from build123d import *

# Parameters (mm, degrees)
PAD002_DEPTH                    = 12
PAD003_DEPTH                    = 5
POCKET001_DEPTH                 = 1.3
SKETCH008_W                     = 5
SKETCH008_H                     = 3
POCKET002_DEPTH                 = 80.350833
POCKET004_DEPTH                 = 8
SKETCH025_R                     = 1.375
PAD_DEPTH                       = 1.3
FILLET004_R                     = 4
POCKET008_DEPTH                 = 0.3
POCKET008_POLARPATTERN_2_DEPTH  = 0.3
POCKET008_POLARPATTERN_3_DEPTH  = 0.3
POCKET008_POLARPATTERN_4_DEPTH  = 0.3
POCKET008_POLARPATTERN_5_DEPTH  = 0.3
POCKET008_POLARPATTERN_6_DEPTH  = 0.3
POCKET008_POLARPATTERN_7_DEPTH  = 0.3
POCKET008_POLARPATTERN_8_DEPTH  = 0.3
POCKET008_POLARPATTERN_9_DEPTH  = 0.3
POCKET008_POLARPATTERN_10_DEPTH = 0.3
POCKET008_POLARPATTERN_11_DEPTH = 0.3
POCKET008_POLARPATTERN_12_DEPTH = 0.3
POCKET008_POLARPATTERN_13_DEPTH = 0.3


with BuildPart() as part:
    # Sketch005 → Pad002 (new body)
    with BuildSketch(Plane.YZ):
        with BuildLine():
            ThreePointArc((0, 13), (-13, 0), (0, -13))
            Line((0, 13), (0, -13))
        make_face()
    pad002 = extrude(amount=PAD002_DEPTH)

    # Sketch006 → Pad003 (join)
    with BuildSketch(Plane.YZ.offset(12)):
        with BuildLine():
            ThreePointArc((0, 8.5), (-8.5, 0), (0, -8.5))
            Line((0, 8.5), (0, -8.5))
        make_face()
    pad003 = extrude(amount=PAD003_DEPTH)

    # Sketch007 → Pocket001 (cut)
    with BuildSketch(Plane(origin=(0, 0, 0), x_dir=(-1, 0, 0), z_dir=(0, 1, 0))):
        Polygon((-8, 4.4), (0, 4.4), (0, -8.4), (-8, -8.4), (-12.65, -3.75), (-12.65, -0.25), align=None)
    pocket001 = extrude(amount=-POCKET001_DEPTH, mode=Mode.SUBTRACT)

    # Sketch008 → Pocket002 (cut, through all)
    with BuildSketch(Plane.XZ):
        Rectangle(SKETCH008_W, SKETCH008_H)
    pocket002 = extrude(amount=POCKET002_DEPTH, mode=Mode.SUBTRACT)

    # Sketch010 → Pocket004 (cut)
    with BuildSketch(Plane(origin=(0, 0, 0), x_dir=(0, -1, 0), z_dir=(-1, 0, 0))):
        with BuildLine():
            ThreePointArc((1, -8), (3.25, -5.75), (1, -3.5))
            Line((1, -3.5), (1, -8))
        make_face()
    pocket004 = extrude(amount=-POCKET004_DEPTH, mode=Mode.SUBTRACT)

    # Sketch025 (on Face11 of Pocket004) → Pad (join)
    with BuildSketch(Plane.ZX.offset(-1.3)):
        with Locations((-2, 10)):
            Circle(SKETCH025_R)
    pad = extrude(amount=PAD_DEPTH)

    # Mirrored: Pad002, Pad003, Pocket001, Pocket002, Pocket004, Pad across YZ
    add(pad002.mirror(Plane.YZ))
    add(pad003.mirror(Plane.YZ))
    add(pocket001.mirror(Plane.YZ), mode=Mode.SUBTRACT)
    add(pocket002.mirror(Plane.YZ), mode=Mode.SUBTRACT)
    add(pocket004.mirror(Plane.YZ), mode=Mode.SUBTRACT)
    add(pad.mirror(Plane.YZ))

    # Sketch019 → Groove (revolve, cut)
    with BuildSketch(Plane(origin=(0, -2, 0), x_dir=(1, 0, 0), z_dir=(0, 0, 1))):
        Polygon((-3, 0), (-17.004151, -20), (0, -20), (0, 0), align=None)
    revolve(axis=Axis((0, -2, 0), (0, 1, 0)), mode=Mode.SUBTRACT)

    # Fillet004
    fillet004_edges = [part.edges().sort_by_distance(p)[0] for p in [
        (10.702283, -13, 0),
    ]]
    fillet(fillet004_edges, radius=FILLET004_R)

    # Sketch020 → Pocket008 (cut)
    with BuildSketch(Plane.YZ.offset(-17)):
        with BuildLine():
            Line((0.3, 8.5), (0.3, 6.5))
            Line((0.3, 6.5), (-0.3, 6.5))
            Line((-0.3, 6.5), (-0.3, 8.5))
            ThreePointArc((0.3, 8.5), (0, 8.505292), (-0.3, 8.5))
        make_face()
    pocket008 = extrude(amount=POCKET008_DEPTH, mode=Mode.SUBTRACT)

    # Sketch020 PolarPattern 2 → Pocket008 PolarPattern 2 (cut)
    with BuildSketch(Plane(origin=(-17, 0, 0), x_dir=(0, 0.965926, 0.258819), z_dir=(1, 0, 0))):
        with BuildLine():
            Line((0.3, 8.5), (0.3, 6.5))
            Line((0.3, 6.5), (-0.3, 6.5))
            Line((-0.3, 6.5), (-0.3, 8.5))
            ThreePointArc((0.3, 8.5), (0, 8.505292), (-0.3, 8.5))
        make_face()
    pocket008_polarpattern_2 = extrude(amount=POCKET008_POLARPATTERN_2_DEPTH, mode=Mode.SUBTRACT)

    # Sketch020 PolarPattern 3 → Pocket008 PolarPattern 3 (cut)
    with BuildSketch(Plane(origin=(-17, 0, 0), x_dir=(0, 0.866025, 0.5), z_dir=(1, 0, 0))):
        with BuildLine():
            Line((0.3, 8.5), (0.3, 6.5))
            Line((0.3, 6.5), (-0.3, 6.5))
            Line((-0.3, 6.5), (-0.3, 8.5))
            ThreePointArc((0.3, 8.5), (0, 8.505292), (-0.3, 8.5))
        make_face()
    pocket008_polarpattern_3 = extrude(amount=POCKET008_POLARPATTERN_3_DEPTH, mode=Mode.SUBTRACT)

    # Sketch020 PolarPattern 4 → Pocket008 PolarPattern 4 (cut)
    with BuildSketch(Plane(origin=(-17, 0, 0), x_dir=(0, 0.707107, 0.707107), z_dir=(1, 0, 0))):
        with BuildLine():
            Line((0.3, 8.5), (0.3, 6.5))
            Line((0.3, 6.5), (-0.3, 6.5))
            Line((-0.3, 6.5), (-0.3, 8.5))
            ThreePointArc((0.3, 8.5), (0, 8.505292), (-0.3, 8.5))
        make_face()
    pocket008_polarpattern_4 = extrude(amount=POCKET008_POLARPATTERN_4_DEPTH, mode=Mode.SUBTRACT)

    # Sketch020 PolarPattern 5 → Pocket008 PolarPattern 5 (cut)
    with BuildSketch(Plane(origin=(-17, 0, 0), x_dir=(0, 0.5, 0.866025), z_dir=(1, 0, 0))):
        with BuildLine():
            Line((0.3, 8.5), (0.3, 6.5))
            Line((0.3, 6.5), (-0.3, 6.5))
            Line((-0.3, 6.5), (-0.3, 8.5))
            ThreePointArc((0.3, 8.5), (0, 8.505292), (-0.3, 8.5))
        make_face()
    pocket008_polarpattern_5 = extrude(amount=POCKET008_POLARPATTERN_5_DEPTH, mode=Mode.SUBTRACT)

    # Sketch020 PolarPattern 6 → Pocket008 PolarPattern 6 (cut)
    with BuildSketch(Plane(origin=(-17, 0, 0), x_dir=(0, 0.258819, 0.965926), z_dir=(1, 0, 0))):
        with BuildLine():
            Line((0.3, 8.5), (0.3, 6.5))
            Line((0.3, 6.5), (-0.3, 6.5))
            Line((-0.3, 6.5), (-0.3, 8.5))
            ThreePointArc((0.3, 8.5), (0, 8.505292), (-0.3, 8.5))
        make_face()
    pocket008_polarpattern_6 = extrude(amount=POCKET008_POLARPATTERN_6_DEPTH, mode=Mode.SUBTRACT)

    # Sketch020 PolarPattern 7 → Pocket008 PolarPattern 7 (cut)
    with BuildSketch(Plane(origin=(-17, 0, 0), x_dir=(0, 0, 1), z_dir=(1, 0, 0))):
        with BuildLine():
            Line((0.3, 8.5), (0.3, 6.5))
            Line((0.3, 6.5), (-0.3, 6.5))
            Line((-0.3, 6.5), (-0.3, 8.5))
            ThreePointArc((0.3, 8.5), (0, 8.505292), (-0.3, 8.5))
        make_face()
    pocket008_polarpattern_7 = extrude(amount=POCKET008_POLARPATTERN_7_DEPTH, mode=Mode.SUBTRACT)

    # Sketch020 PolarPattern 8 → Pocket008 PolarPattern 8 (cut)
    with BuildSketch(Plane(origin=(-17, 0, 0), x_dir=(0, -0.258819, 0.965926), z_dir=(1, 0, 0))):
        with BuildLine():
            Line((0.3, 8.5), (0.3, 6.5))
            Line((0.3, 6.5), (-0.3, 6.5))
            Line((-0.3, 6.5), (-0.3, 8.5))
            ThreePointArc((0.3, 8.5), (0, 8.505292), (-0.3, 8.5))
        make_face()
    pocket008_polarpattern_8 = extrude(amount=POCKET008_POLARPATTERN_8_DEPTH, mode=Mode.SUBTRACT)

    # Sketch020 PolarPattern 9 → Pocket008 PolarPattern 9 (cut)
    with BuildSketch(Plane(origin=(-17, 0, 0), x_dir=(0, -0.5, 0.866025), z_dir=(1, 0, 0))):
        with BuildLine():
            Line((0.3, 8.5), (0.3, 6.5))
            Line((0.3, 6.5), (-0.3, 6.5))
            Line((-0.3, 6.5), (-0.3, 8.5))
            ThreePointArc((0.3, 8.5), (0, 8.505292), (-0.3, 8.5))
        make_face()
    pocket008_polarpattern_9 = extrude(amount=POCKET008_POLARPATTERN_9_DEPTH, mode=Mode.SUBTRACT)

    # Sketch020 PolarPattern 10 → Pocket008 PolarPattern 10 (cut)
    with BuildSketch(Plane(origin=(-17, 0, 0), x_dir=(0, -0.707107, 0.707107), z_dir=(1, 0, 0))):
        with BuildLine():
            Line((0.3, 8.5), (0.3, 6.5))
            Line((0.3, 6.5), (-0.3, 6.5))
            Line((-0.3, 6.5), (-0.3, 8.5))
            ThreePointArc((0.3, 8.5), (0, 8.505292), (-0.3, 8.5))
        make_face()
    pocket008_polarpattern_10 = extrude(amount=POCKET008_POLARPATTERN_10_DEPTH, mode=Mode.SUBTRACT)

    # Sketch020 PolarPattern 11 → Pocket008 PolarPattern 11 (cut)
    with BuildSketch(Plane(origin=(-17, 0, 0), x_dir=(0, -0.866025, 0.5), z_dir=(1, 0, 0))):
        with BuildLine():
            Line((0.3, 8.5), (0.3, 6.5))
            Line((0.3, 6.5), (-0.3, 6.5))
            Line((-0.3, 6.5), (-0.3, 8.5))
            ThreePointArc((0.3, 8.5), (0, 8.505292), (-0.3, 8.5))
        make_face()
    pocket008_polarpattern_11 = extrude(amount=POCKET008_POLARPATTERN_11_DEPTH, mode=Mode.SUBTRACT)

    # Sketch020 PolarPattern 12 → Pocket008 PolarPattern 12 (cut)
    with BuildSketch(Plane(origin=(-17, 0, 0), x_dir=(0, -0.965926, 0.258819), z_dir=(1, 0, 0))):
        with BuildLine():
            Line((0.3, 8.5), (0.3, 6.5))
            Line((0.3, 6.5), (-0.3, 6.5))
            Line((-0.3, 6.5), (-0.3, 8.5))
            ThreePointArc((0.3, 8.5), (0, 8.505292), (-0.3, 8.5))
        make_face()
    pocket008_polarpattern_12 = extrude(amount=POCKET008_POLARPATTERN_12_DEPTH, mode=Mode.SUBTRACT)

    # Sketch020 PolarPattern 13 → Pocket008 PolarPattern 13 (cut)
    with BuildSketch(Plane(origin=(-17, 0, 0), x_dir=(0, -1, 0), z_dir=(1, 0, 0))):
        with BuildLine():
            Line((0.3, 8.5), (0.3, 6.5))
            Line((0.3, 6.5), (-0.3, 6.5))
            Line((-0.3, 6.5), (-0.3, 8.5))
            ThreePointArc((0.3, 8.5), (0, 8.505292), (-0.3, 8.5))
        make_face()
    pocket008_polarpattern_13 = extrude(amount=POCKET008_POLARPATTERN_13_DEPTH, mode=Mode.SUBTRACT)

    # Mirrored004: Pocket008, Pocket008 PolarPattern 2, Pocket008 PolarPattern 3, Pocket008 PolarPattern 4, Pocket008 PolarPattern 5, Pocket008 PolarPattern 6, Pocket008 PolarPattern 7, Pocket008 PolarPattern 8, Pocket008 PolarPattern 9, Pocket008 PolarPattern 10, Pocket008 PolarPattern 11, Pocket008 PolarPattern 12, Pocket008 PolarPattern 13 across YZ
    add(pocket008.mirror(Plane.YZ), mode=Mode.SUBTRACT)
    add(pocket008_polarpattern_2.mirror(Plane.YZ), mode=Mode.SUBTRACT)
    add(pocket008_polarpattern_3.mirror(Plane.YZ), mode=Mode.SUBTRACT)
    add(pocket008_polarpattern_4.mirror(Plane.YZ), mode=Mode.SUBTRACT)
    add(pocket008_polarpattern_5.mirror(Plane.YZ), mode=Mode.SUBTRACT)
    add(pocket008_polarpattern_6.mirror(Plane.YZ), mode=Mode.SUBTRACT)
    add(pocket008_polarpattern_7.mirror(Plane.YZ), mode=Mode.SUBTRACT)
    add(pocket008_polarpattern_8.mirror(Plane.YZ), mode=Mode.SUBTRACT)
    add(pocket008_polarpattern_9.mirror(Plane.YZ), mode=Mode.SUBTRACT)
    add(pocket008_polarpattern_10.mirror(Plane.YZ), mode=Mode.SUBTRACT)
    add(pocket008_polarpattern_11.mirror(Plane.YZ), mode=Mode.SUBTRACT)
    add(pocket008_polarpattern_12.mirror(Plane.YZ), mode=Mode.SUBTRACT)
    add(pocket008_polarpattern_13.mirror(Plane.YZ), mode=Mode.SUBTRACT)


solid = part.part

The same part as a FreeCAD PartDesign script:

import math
import FreeCAD as App
import Part
import Sketcher
Q = App.Units.Quantity


def edges_at(feature, points):
    """Names of the edges that pass closest to the given points."""
    edges = feature.Shape.Edges
    near = lambda p: min(range(len(edges)), key=lambda i: edges[i].distToShape(Part.Vertex(*p))[0])
    return sorted({f"Edge{near(p) + 1}" for p in points})


def add_polygon(sketch, points):
    """Adds a closed chain of lines whose ends are joined by coincident constraints."""
    first, n = sketch.GeometryCount, len(points)
    for a, b in zip(points, points[1:] + points[:1]):
        sketch.addGeometry(Part.LineSegment(App.Vector(*a, 0), App.Vector(*b, 0)), False)
    for i in range(n):
        sketch.addConstraint(Sketcher.Constraint("Coincident", first + i, 2, first + (i + 1) % n, 1))

doc = App.newDocument("Part")
body = doc.addObject("PartDesign::Body", "Body")

# Sketch on YZ plane
sketch1 = body.newObject("Sketcher::SketchObject", "Sketch")
sketch1.AttachmentSupport = (doc.getObject("YZ_Plane"), [""])
sketch1.MapMode = "FlatFace"
sketch1.addGeometry([
    Part.ArcOfCircle(Part.Circle(App.Vector(0, 0, 0), App.Vector(0, 0, 1), 13), math.radians(90), math.radians(270)),
    Part.LineSegment(App.Vector(0, -13, 0), App.Vector(0, 13, 0)),
], False)
sketch1.addConstraint([
    Sketcher.Constraint("Coincident", 0, 1, 1, 2),
    Sketcher.Constraint("Coincident", 1, 1, 0, 2),
    Sketcher.Constraint("Vertical", 1),
    Sketcher.Constraint("Coincident", 0, 3, -1, 1),
    Sketcher.Constraint("PointOnObject", 0, 1, -2),
    Sketcher.Constraint("Radius", 0, 13.0),
])
pad1 = body.newObject("PartDesign::Pad", "Pad")
pad1.Profile = sketch1
pad1.Length = 12

# Sketch on YZ plane
sketch2 = body.newObject("Sketcher::SketchObject", "Sketch001")
sketch2.AttachmentSupport = (doc.getObject("YZ_Plane"), [""])
sketch2.MapMode = "FlatFace"
sketch2.AttachmentOffset = App.Placement(App.Vector(0, 0, 12), App.Rotation())
sketch2.addGeometry([
    Part.ArcOfCircle(Part.Circle(App.Vector(0, 0, 0), App.Vector(0, 0, 1), 8), math.radians(90), math.radians(270)),
    Part.LineSegment(App.Vector(0, -8, 0), App.Vector(0, 8, 0)),
], False)
sketch2.addConstraint([
    Sketcher.Constraint("Coincident", 0, 1, 1, 2),
    Sketcher.Constraint("Coincident", 1, 1, 0, 2),
    Sketcher.Constraint("Vertical", 1),
    Sketcher.Constraint("Coincident", 0, 3, -1, 1),
    Sketcher.Constraint("PointOnObject", 0, 1, -2),
    Sketcher.Constraint("Radius", 0, 8.5),
])
pad2 = body.newObject("PartDesign::Pad", "Pad001")
pad2.Profile = sketch2
pad2.Length = 5

# Sketch on XZ plane
sketch3 = body.newObject("Sketcher::SketchObject", "Sketch002")
sketch3.AttachmentSupport = (doc.getObject("XZ_Plane"), [""])
sketch3.MapMode = "FlatFace"
add_polygon(sketch3, [(0, 4.4), (8, 4.4), (12.7, -0.2), (12.7, -3.8), (8, -8.4), (0, -8.4)])  # lines 0-5
sketch3.addConstraint([
    Sketcher.Constraint("Horizontal", 0),
    Sketcher.Constraint("Vertical", 2),
    Sketcher.Constraint("Horizontal", 4),
    Sketcher.Constraint("Vertical", 5),
    Sketcher.Constraint("PointOnObject", 4, 2, -2),
    Sketcher.Constraint("Perpendicular", 1, 3),
    Sketcher.Constraint("Vertical", 0, 2, 3, 2),
    Sketcher.Constraint("Equal", 1, 3),
    Sketcher.Constraint("DistanceX", 0, 1, 0, 2, 8.0),
    Sketcher.Constraint("DistanceY", 2, 2, 2, 1, 3.5),
    Sketcher.Constraint("DistanceY", 5, 1, 5, 2, 12.8),
    Sketcher.Constraint("DistanceY", -1, 1, 0, 2, 4.4),
])
pocket1 = body.newObject("PartDesign::Pocket", "Pocket")
pocket1.Profile = sketch3
pocket1.Length = 1.3
pocket1.Reversed = True

# Sketch on XZ plane
sketch4 = body.newObject("Sketcher::SketchObject", "Sketch003")
sketch4.AttachmentSupport = (doc.getObject("XZ_Plane"), [""])
sketch4.MapMode = "FlatFace"
add_polygon(sketch4, [(-2.5, 1.5), (-2.5, -1.5), (2.5, -1.5), (2.5, 1.5)])  # lines 0-3
sketch4.addConstraint([
    Sketcher.Constraint("Vertical", 0),
    Sketcher.Constraint("Horizontal", 1),
    Sketcher.Constraint("Vertical", 2),
    Sketcher.Constraint("Horizontal", 3),
    Sketcher.Constraint("Symmetric", 0, 2, 2, 2, -1, 1),
    Sketcher.Constraint("DistanceX", 1, 1, 1, 2, 5.0),
    Sketcher.Constraint("DistanceY", 0, 2, 0, 1, 3.0),
])
pocket2 = body.newObject("PartDesign::Pocket", "Pocket001")
pocket2.Profile = sketch4
pocket2.Type = "ThroughAll"
pocket2.Reversed = True

# Sketch on YZ plane
sketch5 = body.newObject("Sketcher::SketchObject", "Sketch004")
sketch5.AttachmentSupport = (doc.getObject("YZ_Plane"), [""])
sketch5.MapMode = "FlatFace"
sketch5.addGeometry([
    Part.ArcOfCircle(Part.Circle(App.Vector(-1, -5.8, 0), App.Vector(0, 0, 1), 2.2), math.radians(90), math.radians(270)),
    Part.LineSegment(App.Vector(-1, -3.5, 0), App.Vector(-1, -8, 0)),
], False)
sketch5.addConstraint([
    Sketcher.Constraint("Coincident", 0, 1, 1, 1),
    Sketcher.Constraint("Coincident", 1, 2, 0, 2),
    Sketcher.Constraint("Vertical", 1),
    Sketcher.Constraint("Radius", 0, 2.25),
    Sketcher.Constraint("DistanceX", 0, 3, -1, 1, 1.0),
    Sketcher.Constraint("DistanceX", 0, 1, -1, 1, 1.0),
    Sketcher.Constraint("DistanceY", 1, 2, -1, 1, 8.0),
])
pocket3 = body.newObject("PartDesign::Pocket", "Pocket002")
pocket3.Profile = sketch5
pocket3.Length = 8
pocket3.Reversed = True

# Sketch on XZ plane
sketch6 = body.newObject("Sketcher::SketchObject", "Sketch005")
sketch6.AttachmentSupport = (doc.getObject("XZ_Plane"), [""])
sketch6.MapMode = "FlatFace"
sketch6.AttachmentOffset = App.Placement(App.Vector(0, 0, 1.3), App.Rotation())
sketch6.addGeometry(Part.Circle(App.Vector(10, -2, 0), App.Vector(0, 0, 1), 1.4), False)
sketch6.addConstraint([
    Sketcher.Constraint("Diameter", 0, 2.75),
    Sketcher.Constraint("DistanceX", -1, 1, 0, 3, 10.0),
    Sketcher.Constraint("DistanceY", 0, 3, -1, 1, 2.0),
])
pad3 = body.newObject("PartDesign::Pad", "Pad002")
pad3.Profile = sketch6
pad3.Length = 1.3
pad3.Reversed = True
doc.recompute()

mirrored = body.newObject("PartDesign::Mirrored", "Mirrored")
mirrored.Originals = [pad1, pad2, pocket1, pocket2, pocket3, pad3]
mirrored.MirrorPlane = (doc.getObject("YZ_Plane"), [""])
body.Tip = mirrored

# Sketch on XY plane
sketch7 = body.newObject("Sketcher::SketchObject", "Sketch006")
sketch7.AttachmentSupport = (doc.getObject("XY_Plane"), [""])
sketch7.MapMode = "FlatFace"
add_polygon(sketch7, [(-3, -2), (-17, -22), (0, -22), (0, -2)])  # lines 0-3
sketch7.addConstraint([
    Sketcher.Constraint("Horizontal", 1),
    Sketcher.Constraint("Vertical", 2),
    Sketcher.Constraint("Horizontal", 3),
    Sketcher.Constraint("PointOnObject", 1, 2, -2),
    Sketcher.Constraint("DistanceX", 3, 2, 3, 1, 3.0),
    Sketcher.Constraint("DistanceY", 2, 1, 2, 2, 20.0),
    Sketcher.Constraint("Angle", 0, Q("-125 deg")),
    Sketcher.Constraint("DistanceY", 0, 2, -1, 1, 22.0),
])
groove = body.newObject("PartDesign::Groove", "Groove")
groove.Profile = sketch7
groove.ReferenceAxis = (sketch7, ["V_Axis"])
groove.Angle = 360
doc.recompute()

fillet = body.newObject("PartDesign::Fillet", "Fillet")
fillet.Base = (groove, edges_at(groove, [(10.702, -13, 0)]))
fillet.Radius = 4

# Sketch on YZ plane
sketch8 = body.newObject("Sketcher::SketchObject", "Sketch007")
sketch8.AttachmentSupport = (doc.getObject("YZ_Plane"), [""])
sketch8.MapMode = "FlatFace"
sketch8.AttachmentOffset = App.Placement(App.Vector(0, 0, -17), App.Rotation())
sketch8.addGeometry([
    Part.LineSegment(App.Vector(0.3, 6.5, 0), App.Vector(0.3, 8.5, 0)),
    Part.ArcOfCircle(Part.Circle(App.Vector(0, 0, 0), App.Vector(0, 0, 1), 8.5), math.radians(87.98), math.radians(92.02)),
    Part.LineSegment(App.Vector(-0.3, 8.5, 0), App.Vector(-0.3, 6.5, 0)),
    Part.LineSegment(App.Vector(-0.3, 6.5, 0), App.Vector(0.3, 6.5, 0)),
], False)
sketch8.addConstraint([
    Sketcher.Constraint("Coincident", 0, 2, 1, 1),
    Sketcher.Constraint("Coincident", 1, 2, 2, 1),
    Sketcher.Constraint("Coincident", 2, 2, 3, 1),
    Sketcher.Constraint("Coincident", 3, 2, 0, 1),
    Sketcher.Constraint("Vertical", 0),
    Sketcher.Constraint("Vertical", 2),
    Sketcher.Constraint("Horizontal", 3),
    Sketcher.Constraint("Symmetric", 0, 2, 1, 2, -2),
    Sketcher.Constraint("DistanceY", 0, 1, 0, 2, 2.0),
    Sketcher.Constraint("DistanceX", 3, 1, 3, 2, 0.6),
    Sketcher.Constraint("DistanceY", -1, 1, 0, 2, 8.5),
    Sketcher.Constraint("Radius", 1, 8.506047),
])
pocket4 = body.newObject("PartDesign::Pocket", "Pocket003")
pocket4.Profile = sketch8
pocket4.Length = 0.3
pocket4.Reversed = True

# Sketch on YZ plane
sketch9 = body.newObject("Sketcher::SketchObject", "Sketch008")
sketch9.AttachmentSupport = (doc.getObject("YZ_Plane"), [""])
sketch9.MapMode = "FlatFace"
sketch9.AttachmentOffset = App.Placement(App.Vector(0, 0, -17), App.Rotation())
sketch9.addGeometry([
    Part.LineSegment(App.Vector(-1.4, 6.4, 0), App.Vector(-1.9, 8.3, 0)),
    Part.ArcOfCircle(Part.Circle(App.Vector(0, 0, 0), App.Vector(0, 0, 1), 8.5), math.radians(102.98), math.radians(107.02)),
    Part.LineSegment(App.Vector(-2.5, 8.1, 0), App.Vector(-2, 6.2, 0)),
    Part.LineSegment(App.Vector(-2, 6.2, 0), App.Vector(-1.4, 6.4, 0)),
], False)
sketch9.addConstraint([
    Sketcher.Constraint("Coincident", 0, 2, 1, 1),
    Sketcher.Constraint("Coincident", 1, 2, 2, 1),
    Sketcher.Constraint("Coincident", 2, 2, 3, 1),
    Sketcher.Constraint("Coincident", 3, 2, 0, 1),
    Sketcher.Constraint("Parallel", 0, 2),
    Sketcher.Constraint("Perpendicular", 2, 3),
    Sketcher.Constraint("Equal", 0, 2),
    Sketcher.Constraint("Angle", 0, Q("104.999995 deg")),
    Sketcher.Constraint("Distance", 0, 2.0),
    Sketcher.Constraint("Distance", 3, 0.6),
    Sketcher.Constraint("Radius", 1, 8.506047),
    Sketcher.Constraint("DistanceX", 2, 2, -1, 1, 1.972101),
    Sketcher.Constraint("DistanceY", 1, 3, -1, 1, 0.00073),
])
pocket5 = body.newObject("PartDesign::Pocket", "Pocket004")
pocket5.Profile = sketch9
pocket5.Length = 0.3
pocket5.Reversed = True

# Sketch on YZ plane
sketch10 = body.newObject("Sketcher::SketchObject", "Sketch009")
sketch10.AttachmentSupport = (doc.getObject("YZ_Plane"), [""])
sketch10.MapMode = "FlatFace"
sketch10.AttachmentOffset = App.Placement(App.Vector(0, 0, -17), App.Rotation())
sketch10.addGeometry([
    Part.LineSegment(App.Vector(-3, 5.8, 0), App.Vector(-4, 7.5, 0)),
    Part.ArcOfCircle(Part.Circle(App.Vector(0, 0, 0), App.Vector(0, 0, 1), 8.5), math.radians(117.98), math.radians(122.02)),
    Part.LineSegment(App.Vector(-4.5, 7.2, 0), App.Vector(-3.5, 5.5, 0)),
    Part.LineSegment(App.Vector(-3.5, 5.5, 0), App.Vector(-3, 5.8, 0)),
], False)
sketch10.addConstraint([
    Sketcher.Constraint("Coincident", 0, 2, 1, 1),
    Sketcher.Constraint("Coincident", 1, 2, 2, 1),
    Sketcher.Constraint("Coincident", 2, 2, 3, 1),
    Sketcher.Constraint("Coincident", 3, 2, 0, 1),
    Sketcher.Constraint("Parallel", 0, 2),
    Sketcher.Constraint("Perpendicular", 2, 3),
    Sketcher.Constraint("Equal", 0, 2),
    Sketcher.Constraint("Angle", 0, Q("120.000012 deg")),
    Sketcher.Constraint("Distance", 0, 2.0),
    Sketcher.Constraint("Distance", 3, 0.6),
    Sketcher.Constraint("Radius", 1, 8.506047),
    Sketcher.Constraint("DistanceX", 1, 2, -1, 1, 4.509809),
    Sketcher.Constraint("DistanceY", 1, 3, -1, 1, 0.000654),
])
pocket6 = body.newObject("PartDesign::Pocket", "Pocket005")
pocket6.Profile = sketch10
pocket6.Length = 0.3
pocket6.Reversed = True

# Sketch on YZ plane
sketch11 = body.newObject("Sketcher::SketchObject", "Sketch010")
sketch11.AttachmentSupport = (doc.getObject("YZ_Plane"), [""])
sketch11.MapMode = "FlatFace"
sketch11.AttachmentOffset = App.Placement(App.Vector(0, 0, -17), App.Rotation())
sketch11.addGeometry([
    Part.LineSegment(App.Vector(-4.4, 4.8, 0), App.Vector(-5.8, 6.2, 0)),
    Part.ArcOfCircle(Part.Circle(App.Vector(0, 0, 0), App.Vector(0, 0, 1), 8.5), math.radians(132.98), math.radians(137.02)),
    Part.LineSegment(App.Vector(-6.2, 5.8, 0), App.Vector(-4.8, 4.4, 0)),
    Part.LineSegment(App.Vector(-4.8, 4.4, 0), App.Vector(-4.4, 4.8, 0)),
], False)
sketch11.addConstraint([
    Sketcher.Constraint("Coincident", 0, 2, 1, 1),
    Sketcher.Constraint("Coincident", 1, 2, 2, 1),
    Sketcher.Constraint("Coincident", 2, 2, 3, 1),
    Sketcher.Constraint("Coincident", 3, 2, 0, 1),
    Sketcher.Constraint("Parallel", 0, 2),
    Sketcher.Constraint("Perpendicular", 2, 3),
    Sketcher.Constraint("Equal", 0, 2),
    Sketcher.Constraint("Angle", 0, Q("135 deg")),
    Sketcher.Constraint("Distance", 0, 2.0),
    Sketcher.Constraint("Distance", 3, 0.6),
    Sketcher.Constraint("Radius", 1, 8.506047),
    Sketcher.Constraint("DistanceY", -1, 1, 0, 2, 6.22254),
    Sketcher.Constraint("DistanceX", 1, 2, -1, 1, 6.22254),
])
pocket7 = body.newObject("PartDesign::Pocket", "Pocket006")
pocket7.Profile = sketch11
pocket7.Length = 0.3
pocket7.Reversed = True

# Sketch on YZ plane
sketch12 = body.newObject("Sketcher::SketchObject", "Sketch011")
sketch12.AttachmentSupport = (doc.getObject("YZ_Plane"), [""])
sketch12.MapMode = "FlatFace"
sketch12.AttachmentOffset = App.Placement(App.Vector(0, 0, -17), App.Rotation())
sketch12.addGeometry([
    Part.LineSegment(App.Vector(-5.5, 3.5, 0), App.Vector(-7.2, 4.5, 0)),
    Part.ArcOfCircle(Part.Circle(App.Vector(0, 0, 0), App.Vector(0, 0, 1), 8.5), math.radians(147.98), math.radians(152.02)),
    Part.LineSegment(App.Vector(-7.5, 4, 0), App.Vector(-5.8, 3, 0)),
    Part.LineSegment(App.Vector(-5.8, 3, 0), App.Vector(-5.5, 3.5, 0)),
], False)
sketch12.addConstraint([
    Sketcher.Constraint("Coincident", 0, 2, 1, 1),
    Sketcher.Constraint("Coincident", 1, 2, 2, 1),
    Sketcher.Constraint("Coincident", 2, 2, 3, 1),
    Sketcher.Constraint("Coincident", 3, 2, 0, 1),
    Sketcher.Constraint("Parallel", 0, 2),
    Sketcher.Constraint("Perpendicular", 2, 3),
    Sketcher.Constraint("Equal", 0, 2),
    Sketcher.Constraint("Angle", 0, Q("149.999988 deg")),
    Sketcher.Constraint("Distance", 0, 2.0),
    Sketcher.Constraint("Distance", 3, 0.6),
    Sketcher.Constraint("Radius", 1, 8.506047),
    Sketcher.Constraint("DistanceY", -1, 1, 0, 2, 4.509809),
    Sketcher.Constraint("DistanceX", -1, 1, 1, 3, 0.000654),
])
pocket8 = body.newObject("PartDesign::Pocket", "Pocket007")
pocket8.Profile = sketch12
pocket8.Length = 0.3
pocket8.Reversed = True

# Sketch on YZ plane
sketch13 = body.newObject("Sketcher::SketchObject", "Sketch012")
sketch13.AttachmentSupport = (doc.getObject("YZ_Plane"), [""])
sketch13.MapMode = "FlatFace"
sketch13.AttachmentOffset = App.Placement(App.Vector(0, 0, -17), App.Rotation())
sketch13.addGeometry([
    Part.LineSegment(App.Vector(-6.2, 2, 0), App.Vector(-8.1, 2.5, 0)),
    Part.ArcOfCircle(Part.Circle(App.Vector(0, 0, 0), App.Vector(0, 0, 1), 8.5), math.radians(162.98), math.radians(167.02)),
    Part.LineSegment(App.Vector(-8.3, 1.9, 0), App.Vector(-6.4, 1.4, 0)),
    Part.LineSegment(App.Vector(-6.4, 1.4, 0), App.Vector(-6.2, 2, 0)),
], False)
sketch13.addConstraint([
    Sketcher.Constraint("Coincident", 0, 2, 1, 1),
    Sketcher.Constraint("Coincident", 1, 2, 2, 1),
    Sketcher.Constraint("Coincident", 2, 2, 3, 1),
    Sketcher.Constraint("Coincident", 3, 2, 0, 1),
    Sketcher.Constraint("Parallel", 0, 2),
    Sketcher.Constraint("Perpendicular", 2, 3),
    Sketcher.Constraint("Equal", 0, 2),
    Sketcher.Constraint("Angle", 0, Q("165.000005 deg")),
    Sketcher.Constraint("Distance", 0, 2.0),
    Sketcher.Constraint("Distance", 3, 0.6),
    Sketcher.Constraint("Radius", 1, 8.506047),
    Sketcher.Constraint("DistanceY", -1, 1, 3, 2, 1.972101),
    Sketcher.Constraint("DistanceX", -1, 1, 1, 3, 0.00073),
])
pocket9 = body.newObject("PartDesign::Pocket", "Pocket008")
pocket9.Profile = sketch13
pocket9.Length = 0.3
pocket9.Reversed = True

# Sketch on YZ plane
sketch14 = body.newObject("Sketcher::SketchObject", "Sketch013")
sketch14.AttachmentSupport = (doc.getObject("YZ_Plane"), [""])
sketch14.MapMode = "FlatFace"
sketch14.AttachmentOffset = App.Placement(App.Vector(0, 0, -17), App.Rotation())
sketch14.addGeometry([
    Part.LineSegment(App.Vector(-6.5, 0.3, 0), App.Vector(-8.5, 0.3, 0)),
    Part.ArcOfCircle(Part.Circle(App.Vector(0, 0, 0), App.Vector(0, 0, 1), 8.5), math.radians(177.98), math.radians(182.02)),
    Part.LineSegment(App.Vector(-8.5, -0.3, 0), App.Vector(-6.5, -0.3, 0)),
    Part.LineSegment(App.Vector(-6.5, -0.3, 0), App.Vector(-6.5, 0.3, 0)),
], False)
sketch14.addConstraint([
    Sketcher.Constraint("Coincident", 0, 2, 1, 1),
    Sketcher.Constraint("Coincident", 1, 2, 2, 1),
    Sketcher.Constraint("Coincident", 2, 2, 3, 1),
    Sketcher.Constraint("Coincident", 3, 2, 0, 1),
    Sketcher.Constraint("Horizontal", 0),
    Sketcher.Constraint("Horizontal", 2),
    Sketcher.Constraint("Vertical", 3),
    Sketcher.Constraint("Symmetric", 0, 2, 1, 2, -1),
    Sketcher.Constraint("DistanceX", 0, 2, 0, 1, 2.0),
    Sketcher.Constraint("DistanceY", 3, 1, 3, 2, 0.6),
    Sketcher.Constraint("DistanceX", 0, 2, -1, 1, 8.5),
    Sketcher.Constraint("Radius", 1, 8.506047),
])
pocket10 = body.newObject("PartDesign::Pocket", "Pocket009")
pocket10.Profile = sketch14
pocket10.Length = 0.3
pocket10.Reversed = True

# Sketch on YZ plane
sketch15 = body.newObject("Sketcher::SketchObject", "Sketch014")
sketch15.AttachmentSupport = (doc.getObject("YZ_Plane"), [""])
sketch15.MapMode = "FlatFace"
sketch15.AttachmentOffset = App.Placement(App.Vector(0, 0, -17), App.Rotation())
sketch15.addGeometry([
    Part.LineSegment(App.Vector(-6.4, -1.4, 0), App.Vector(-8.3, -1.9, 0)),
    Part.ArcOfCircle(Part.Circle(App.Vector(0, 0, 0), App.Vector(0, 0, 1), 8.5), math.radians(-167.02), math.radians(-162.98)),
    Part.LineSegment(App.Vector(-8.1, -2.5, 0), App.Vector(-6.2, -2, 0)),
    Part.LineSegment(App.Vector(-6.2, -2, 0), App.Vector(-6.4, -1.4, 0)),
], False)
sketch15.addConstraint([
    Sketcher.Constraint("Coincident", 0, 2, 1, 1),
    Sketcher.Constraint("Coincident", 1, 2, 2, 1),
    Sketcher.Constraint("Coincident", 2, 2, 3, 1),
    Sketcher.Constraint("Coincident", 3, 2, 0, 1),
    Sketcher.Constraint("Parallel", 0, 2),
    Sketcher.Constraint("Perpendicular", 2, 3),
    Sketcher.Constraint("Equal", 0, 2),
    Sketcher.Constraint("Angle", 0, Q("-165.000005 deg")),
    Sketcher.Constraint("Distance", 0, 2.0),
    Sketcher.Constraint("Distance", 3, 0.6),
    Sketcher.Constraint("Radius", 1, 8.506047),
    Sketcher.Constraint("DistanceY", 2, 2, -1, 1, 1.972101),
    Sketcher.Constraint("DistanceX", -1, 1, 1, 3, 0.00073),
])
pocket11 = body.newObject("PartDesign::Pocket", "Pocket010")
pocket11.Profile = sketch15
pocket11.Length = 0.3
pocket11.Reversed = True

# Sketch on YZ plane
sketch16 = body.newObject("Sketcher::SketchObject", "Sketch015")
sketch16.AttachmentSupport = (doc.getObject("YZ_Plane"), [""])
sketch16.MapMode = "FlatFace"
sketch16.AttachmentOffset = App.Placement(App.Vector(0, 0, -17), App.Rotation())
sketch16.addGeometry([
    Part.LineSegment(App.Vector(-5.8, -3, 0), App.Vector(-7.5, -4, 0)),
    Part.ArcOfCircle(Part.Circle(App.Vector(0, 0, 0), App.Vector(0, 0, 1), 8.5), math.radians(-152.02), math.radians(-147.98)),
    Part.LineSegment(App.Vector(-7.2, -4.5, 0), App.Vector(-5.5, -3.5, 0)),
    Part.LineSegment(App.Vector(-5.5, -3.5, 0), App.Vector(-5.8, -3, 0)),
], False)
sketch16.addConstraint([
    Sketcher.Constraint("Coincident", 0, 2, 1, 1),
    Sketcher.Constraint("Coincident", 1, 2, 2, 1),
    Sketcher.Constraint("Coincident", 2, 2, 3, 1),
    Sketcher.Constraint("Coincident", 3, 2, 0, 1),
    Sketcher.Constraint("Parallel", 0, 2),
    Sketcher.Constraint("Perpendicular", 2, 3),
    Sketcher.Constraint("Equal", 0, 2),
    Sketcher.Constraint("Angle", 0, Q("-149.999988 deg")),
    Sketcher.Constraint("Distance", 0, 2.0),
    Sketcher.Constraint("Distance", 3, 0.6),
    Sketcher.Constraint("Radius", 1, 8.506047),
    Sketcher.Constraint("DistanceY", 1, 2, -1, 1, 4.509809),
    Sketcher.Constraint("DistanceX", -1, 1, 1, 3, 0.000654),
])
pocket12 = body.newObject("PartDesign::Pocket", "Pocket011")
pocket12.Profile = sketch16
pocket12.Length = 0.3
pocket12.Reversed = True

# Sketch on YZ plane
sketch17 = body.newObject("Sketcher::SketchObject", "Sketch016")
sketch17.AttachmentSupport = (doc.getObject("YZ_Plane"), [""])
sketch17.MapMode = "FlatFace"
sketch17.AttachmentOffset = App.Placement(App.Vector(0, 0, -17), App.Rotation())
sketch17.addGeometry([
    Part.LineSegment(App.Vector(-4.8, -4.4, 0), App.Vector(-6.2, -5.8, 0)),
    Part.ArcOfCircle(Part.Circle(App.Vector(0, 0, 0), App.Vector(0, 0, 1), 8.5), math.radians(-137.02), math.radians(-132.98)),
    Part.LineSegment(App.Vector(-5.8, -6.2, 0), App.Vector(-4.4, -4.8, 0)),
    Part.LineSegment(App.Vector(-4.4, -4.8, 0), App.Vector(-4.8, -4.4, 0)),
], False)
sketch17.addConstraint([
    Sketcher.Constraint("Coincident", 0, 2, 1, 1),
    Sketcher.Constraint("Coincident", 1, 2, 2, 1),
    Sketcher.Constraint("Coincident", 2, 2, 3, 1),
    Sketcher.Constraint("Coincident", 3, 2, 0, 1),
    Sketcher.Constraint("Parallel", 0, 2),
    Sketcher.Constraint("Perpendicular", 2, 3),
    Sketcher.Constraint("Equal", 0, 2),
    Sketcher.Constraint("Angle", 0, Q("-135 deg")),
    Sketcher.Constraint("Distance", 0, 2.0),
    Sketcher.Constraint("Distance", 3, 0.6),
    Sketcher.Constraint("Radius", 1, 8.506047),
    Sketcher.Constraint("DistanceX", 0, 2, -1, 1, 6.22254),
    Sketcher.Constraint("DistanceY", 1, 2, -1, 1, 6.22254),
])
pocket13 = body.newObject("PartDesign::Pocket", "Pocket012")
pocket13.Profile = sketch17
pocket13.Length = 0.3
pocket13.Reversed = True

# Sketch on YZ plane
sketch18 = body.newObject("Sketcher::SketchObject", "Sketch017")
sketch18.AttachmentSupport = (doc.getObject("YZ_Plane"), [""])
sketch18.MapMode = "FlatFace"
sketch18.AttachmentOffset = App.Placement(App.Vector(0, 0, -17), App.Rotation())
sketch18.addGeometry([
    Part.LineSegment(App.Vector(-3.5, -5.5, 0), App.Vector(-4.5, -7.2, 0)),
    Part.ArcOfCircle(Part.Circle(App.Vector(0, 0, 0), App.Vector(0, 0, 1), 8.5), math.radians(-122.02), math.radians(-117.98)),
    Part.LineSegment(App.Vector(-4, -7.5, 0), App.Vector(-3, -5.8, 0)),
    Part.LineSegment(App.Vector(-3, -5.8, 0), App.Vector(-3.5, -5.5, 0)),
], False)
sketch18.addConstraint([
    Sketcher.Constraint("Coincident", 0, 2, 1, 1),
    Sketcher.Constraint("Coincident", 1, 2, 2, 1),
    Sketcher.Constraint("Coincident", 2, 2, 3, 1),
    Sketcher.Constraint("Coincident", 3, 2, 0, 1),
    Sketcher.Constraint("Parallel", 0, 2),
    Sketcher.Constraint("Perpendicular", 2, 3),
    Sketcher.Constraint("Equal", 0, 2),
    Sketcher.Constraint("Angle", 0, Q("-120.000012 deg")),
    Sketcher.Constraint("Distance", 0, 2.0),
    Sketcher.Constraint("Distance", 3, 0.6),
    Sketcher.Constraint("Radius", 1, 8.506047),
    Sketcher.Constraint("DistanceX", 0, 2, -1, 1, 4.509809),
    Sketcher.Constraint("DistanceY", -1, 1, 1, 3, 0.000654),
])
pocket14 = body.newObject("PartDesign::Pocket", "Pocket013")
pocket14.Profile = sketch18
pocket14.Length = 0.3
pocket14.Reversed = True

# Sketch on YZ plane
sketch19 = body.newObject("Sketcher::SketchObject", "Sketch018")
sketch19.AttachmentSupport = (doc.getObject("YZ_Plane"), [""])
sketch19.MapMode = "FlatFace"
sketch19.AttachmentOffset = App.Placement(App.Vector(0, 0, -17), App.Rotation())
sketch19.addGeometry([
    Part.LineSegment(App.Vector(-2, -6.2, 0), App.Vector(-2.5, -8.1, 0)),
    Part.ArcOfCircle(Part.Circle(App.Vector(0, 0, 0), App.Vector(0, 0, 1), 8.5), math.radians(-107.02), math.radians(-102.98)),
    Part.LineSegment(App.Vector(-1.9, -8.3, 0), App.Vector(-1.4, -6.4, 0)),
    Part.LineSegment(App.Vector(-1.4, -6.4, 0), App.Vector(-2, -6.2, 0)),
], False)
sketch19.addConstraint([
    Sketcher.Constraint("Coincident", 0, 2, 1, 1),
    Sketcher.Constraint("Coincident", 1, 2, 2, 1),
    Sketcher.Constraint("Coincident", 2, 2, 3, 1),
    Sketcher.Constraint("Coincident", 3, 2, 0, 1),
    Sketcher.Constraint("Parallel", 0, 2),
    Sketcher.Constraint("Perpendicular", 2, 3),
    Sketcher.Constraint("Equal", 0, 2),
    Sketcher.Constraint("Angle", 0, Q("-104.999995 deg")),
    Sketcher.Constraint("Distance", 0, 2.0),
    Sketcher.Constraint("Distance", 3, 0.6),
    Sketcher.Constraint("Radius", 1, 8.506047),
    Sketcher.Constraint("DistanceX", 3, 2, -1, 1, 1.972101),
    Sketcher.Constraint("DistanceY", -1, 1, 1, 3, 0.00073),
])
pocket15 = body.newObject("PartDesign::Pocket", "Pocket014")
pocket15.Profile = sketch19
pocket15.Length = 0.3
pocket15.Reversed = True

# Sketch on YZ plane
sketch20 = body.newObject("Sketcher::SketchObject", "Sketch019")
sketch20.AttachmentSupport = (doc.getObject("YZ_Plane"), [""])
sketch20.MapMode = "FlatFace"
sketch20.AttachmentOffset = App.Placement(App.Vector(0, 0, -17), App.Rotation())
sketch20.addGeometry([
    Part.LineSegment(App.Vector(-0.3, -6.5, 0), App.Vector(-0.3, -8.5, 0)),
    Part.ArcOfCircle(Part.Circle(App.Vector(0, 0, 0), App.Vector(0, 0, 1), 8.5), math.radians(-92.02), math.radians(-87.98)),
    Part.LineSegment(App.Vector(0.3, -8.5, 0), App.Vector(0.3, -6.5, 0)),
    Part.LineSegment(App.Vector(0.3, -6.5, 0), App.Vector(-0.3, -6.5, 0)),
], False)
sketch20.addConstraint([
    Sketcher.Constraint("Coincident", 0, 2, 1, 1),
    Sketcher.Constraint("Coincident", 1, 2, 2, 1),
    Sketcher.Constraint("Coincident", 2, 2, 3, 1),
    Sketcher.Constraint("Coincident", 3, 2, 0, 1),
    Sketcher.Constraint("Vertical", 0),
    Sketcher.Constraint("Vertical", 2),
    Sketcher.Constraint("Horizontal", 3),
    Sketcher.Constraint("Symmetric", 0, 2, 1, 2, -2),
    Sketcher.Constraint("DistanceY", 0, 2, 0, 1, 2.0),
    Sketcher.Constraint("DistanceX", 3, 2, 3, 1, 0.6),
    Sketcher.Constraint("DistanceY", 0, 2, -1, 1, 8.5),
    Sketcher.Constraint("Radius", 1, 8.506047),
])
pocket16 = body.newObject("PartDesign::Pocket", "Pocket015")
pocket16.Profile = sketch20
pocket16.Length = 0.3
pocket16.Reversed = True
doc.recompute()

mirrored2 = body.newObject("PartDesign::Mirrored", "Mirrored001")
mirrored2.Originals = [pocket4, pocket5, pocket6, pocket7, pocket8, pocket9, pocket10, pocket11, pocket12, pocket13, pocket14, pocket15, pocket16]
mirrored2.MirrorPlane = (doc.getObject("YZ_Plane"), [""])
body.Tip = mirrored2

doc.recompute()
